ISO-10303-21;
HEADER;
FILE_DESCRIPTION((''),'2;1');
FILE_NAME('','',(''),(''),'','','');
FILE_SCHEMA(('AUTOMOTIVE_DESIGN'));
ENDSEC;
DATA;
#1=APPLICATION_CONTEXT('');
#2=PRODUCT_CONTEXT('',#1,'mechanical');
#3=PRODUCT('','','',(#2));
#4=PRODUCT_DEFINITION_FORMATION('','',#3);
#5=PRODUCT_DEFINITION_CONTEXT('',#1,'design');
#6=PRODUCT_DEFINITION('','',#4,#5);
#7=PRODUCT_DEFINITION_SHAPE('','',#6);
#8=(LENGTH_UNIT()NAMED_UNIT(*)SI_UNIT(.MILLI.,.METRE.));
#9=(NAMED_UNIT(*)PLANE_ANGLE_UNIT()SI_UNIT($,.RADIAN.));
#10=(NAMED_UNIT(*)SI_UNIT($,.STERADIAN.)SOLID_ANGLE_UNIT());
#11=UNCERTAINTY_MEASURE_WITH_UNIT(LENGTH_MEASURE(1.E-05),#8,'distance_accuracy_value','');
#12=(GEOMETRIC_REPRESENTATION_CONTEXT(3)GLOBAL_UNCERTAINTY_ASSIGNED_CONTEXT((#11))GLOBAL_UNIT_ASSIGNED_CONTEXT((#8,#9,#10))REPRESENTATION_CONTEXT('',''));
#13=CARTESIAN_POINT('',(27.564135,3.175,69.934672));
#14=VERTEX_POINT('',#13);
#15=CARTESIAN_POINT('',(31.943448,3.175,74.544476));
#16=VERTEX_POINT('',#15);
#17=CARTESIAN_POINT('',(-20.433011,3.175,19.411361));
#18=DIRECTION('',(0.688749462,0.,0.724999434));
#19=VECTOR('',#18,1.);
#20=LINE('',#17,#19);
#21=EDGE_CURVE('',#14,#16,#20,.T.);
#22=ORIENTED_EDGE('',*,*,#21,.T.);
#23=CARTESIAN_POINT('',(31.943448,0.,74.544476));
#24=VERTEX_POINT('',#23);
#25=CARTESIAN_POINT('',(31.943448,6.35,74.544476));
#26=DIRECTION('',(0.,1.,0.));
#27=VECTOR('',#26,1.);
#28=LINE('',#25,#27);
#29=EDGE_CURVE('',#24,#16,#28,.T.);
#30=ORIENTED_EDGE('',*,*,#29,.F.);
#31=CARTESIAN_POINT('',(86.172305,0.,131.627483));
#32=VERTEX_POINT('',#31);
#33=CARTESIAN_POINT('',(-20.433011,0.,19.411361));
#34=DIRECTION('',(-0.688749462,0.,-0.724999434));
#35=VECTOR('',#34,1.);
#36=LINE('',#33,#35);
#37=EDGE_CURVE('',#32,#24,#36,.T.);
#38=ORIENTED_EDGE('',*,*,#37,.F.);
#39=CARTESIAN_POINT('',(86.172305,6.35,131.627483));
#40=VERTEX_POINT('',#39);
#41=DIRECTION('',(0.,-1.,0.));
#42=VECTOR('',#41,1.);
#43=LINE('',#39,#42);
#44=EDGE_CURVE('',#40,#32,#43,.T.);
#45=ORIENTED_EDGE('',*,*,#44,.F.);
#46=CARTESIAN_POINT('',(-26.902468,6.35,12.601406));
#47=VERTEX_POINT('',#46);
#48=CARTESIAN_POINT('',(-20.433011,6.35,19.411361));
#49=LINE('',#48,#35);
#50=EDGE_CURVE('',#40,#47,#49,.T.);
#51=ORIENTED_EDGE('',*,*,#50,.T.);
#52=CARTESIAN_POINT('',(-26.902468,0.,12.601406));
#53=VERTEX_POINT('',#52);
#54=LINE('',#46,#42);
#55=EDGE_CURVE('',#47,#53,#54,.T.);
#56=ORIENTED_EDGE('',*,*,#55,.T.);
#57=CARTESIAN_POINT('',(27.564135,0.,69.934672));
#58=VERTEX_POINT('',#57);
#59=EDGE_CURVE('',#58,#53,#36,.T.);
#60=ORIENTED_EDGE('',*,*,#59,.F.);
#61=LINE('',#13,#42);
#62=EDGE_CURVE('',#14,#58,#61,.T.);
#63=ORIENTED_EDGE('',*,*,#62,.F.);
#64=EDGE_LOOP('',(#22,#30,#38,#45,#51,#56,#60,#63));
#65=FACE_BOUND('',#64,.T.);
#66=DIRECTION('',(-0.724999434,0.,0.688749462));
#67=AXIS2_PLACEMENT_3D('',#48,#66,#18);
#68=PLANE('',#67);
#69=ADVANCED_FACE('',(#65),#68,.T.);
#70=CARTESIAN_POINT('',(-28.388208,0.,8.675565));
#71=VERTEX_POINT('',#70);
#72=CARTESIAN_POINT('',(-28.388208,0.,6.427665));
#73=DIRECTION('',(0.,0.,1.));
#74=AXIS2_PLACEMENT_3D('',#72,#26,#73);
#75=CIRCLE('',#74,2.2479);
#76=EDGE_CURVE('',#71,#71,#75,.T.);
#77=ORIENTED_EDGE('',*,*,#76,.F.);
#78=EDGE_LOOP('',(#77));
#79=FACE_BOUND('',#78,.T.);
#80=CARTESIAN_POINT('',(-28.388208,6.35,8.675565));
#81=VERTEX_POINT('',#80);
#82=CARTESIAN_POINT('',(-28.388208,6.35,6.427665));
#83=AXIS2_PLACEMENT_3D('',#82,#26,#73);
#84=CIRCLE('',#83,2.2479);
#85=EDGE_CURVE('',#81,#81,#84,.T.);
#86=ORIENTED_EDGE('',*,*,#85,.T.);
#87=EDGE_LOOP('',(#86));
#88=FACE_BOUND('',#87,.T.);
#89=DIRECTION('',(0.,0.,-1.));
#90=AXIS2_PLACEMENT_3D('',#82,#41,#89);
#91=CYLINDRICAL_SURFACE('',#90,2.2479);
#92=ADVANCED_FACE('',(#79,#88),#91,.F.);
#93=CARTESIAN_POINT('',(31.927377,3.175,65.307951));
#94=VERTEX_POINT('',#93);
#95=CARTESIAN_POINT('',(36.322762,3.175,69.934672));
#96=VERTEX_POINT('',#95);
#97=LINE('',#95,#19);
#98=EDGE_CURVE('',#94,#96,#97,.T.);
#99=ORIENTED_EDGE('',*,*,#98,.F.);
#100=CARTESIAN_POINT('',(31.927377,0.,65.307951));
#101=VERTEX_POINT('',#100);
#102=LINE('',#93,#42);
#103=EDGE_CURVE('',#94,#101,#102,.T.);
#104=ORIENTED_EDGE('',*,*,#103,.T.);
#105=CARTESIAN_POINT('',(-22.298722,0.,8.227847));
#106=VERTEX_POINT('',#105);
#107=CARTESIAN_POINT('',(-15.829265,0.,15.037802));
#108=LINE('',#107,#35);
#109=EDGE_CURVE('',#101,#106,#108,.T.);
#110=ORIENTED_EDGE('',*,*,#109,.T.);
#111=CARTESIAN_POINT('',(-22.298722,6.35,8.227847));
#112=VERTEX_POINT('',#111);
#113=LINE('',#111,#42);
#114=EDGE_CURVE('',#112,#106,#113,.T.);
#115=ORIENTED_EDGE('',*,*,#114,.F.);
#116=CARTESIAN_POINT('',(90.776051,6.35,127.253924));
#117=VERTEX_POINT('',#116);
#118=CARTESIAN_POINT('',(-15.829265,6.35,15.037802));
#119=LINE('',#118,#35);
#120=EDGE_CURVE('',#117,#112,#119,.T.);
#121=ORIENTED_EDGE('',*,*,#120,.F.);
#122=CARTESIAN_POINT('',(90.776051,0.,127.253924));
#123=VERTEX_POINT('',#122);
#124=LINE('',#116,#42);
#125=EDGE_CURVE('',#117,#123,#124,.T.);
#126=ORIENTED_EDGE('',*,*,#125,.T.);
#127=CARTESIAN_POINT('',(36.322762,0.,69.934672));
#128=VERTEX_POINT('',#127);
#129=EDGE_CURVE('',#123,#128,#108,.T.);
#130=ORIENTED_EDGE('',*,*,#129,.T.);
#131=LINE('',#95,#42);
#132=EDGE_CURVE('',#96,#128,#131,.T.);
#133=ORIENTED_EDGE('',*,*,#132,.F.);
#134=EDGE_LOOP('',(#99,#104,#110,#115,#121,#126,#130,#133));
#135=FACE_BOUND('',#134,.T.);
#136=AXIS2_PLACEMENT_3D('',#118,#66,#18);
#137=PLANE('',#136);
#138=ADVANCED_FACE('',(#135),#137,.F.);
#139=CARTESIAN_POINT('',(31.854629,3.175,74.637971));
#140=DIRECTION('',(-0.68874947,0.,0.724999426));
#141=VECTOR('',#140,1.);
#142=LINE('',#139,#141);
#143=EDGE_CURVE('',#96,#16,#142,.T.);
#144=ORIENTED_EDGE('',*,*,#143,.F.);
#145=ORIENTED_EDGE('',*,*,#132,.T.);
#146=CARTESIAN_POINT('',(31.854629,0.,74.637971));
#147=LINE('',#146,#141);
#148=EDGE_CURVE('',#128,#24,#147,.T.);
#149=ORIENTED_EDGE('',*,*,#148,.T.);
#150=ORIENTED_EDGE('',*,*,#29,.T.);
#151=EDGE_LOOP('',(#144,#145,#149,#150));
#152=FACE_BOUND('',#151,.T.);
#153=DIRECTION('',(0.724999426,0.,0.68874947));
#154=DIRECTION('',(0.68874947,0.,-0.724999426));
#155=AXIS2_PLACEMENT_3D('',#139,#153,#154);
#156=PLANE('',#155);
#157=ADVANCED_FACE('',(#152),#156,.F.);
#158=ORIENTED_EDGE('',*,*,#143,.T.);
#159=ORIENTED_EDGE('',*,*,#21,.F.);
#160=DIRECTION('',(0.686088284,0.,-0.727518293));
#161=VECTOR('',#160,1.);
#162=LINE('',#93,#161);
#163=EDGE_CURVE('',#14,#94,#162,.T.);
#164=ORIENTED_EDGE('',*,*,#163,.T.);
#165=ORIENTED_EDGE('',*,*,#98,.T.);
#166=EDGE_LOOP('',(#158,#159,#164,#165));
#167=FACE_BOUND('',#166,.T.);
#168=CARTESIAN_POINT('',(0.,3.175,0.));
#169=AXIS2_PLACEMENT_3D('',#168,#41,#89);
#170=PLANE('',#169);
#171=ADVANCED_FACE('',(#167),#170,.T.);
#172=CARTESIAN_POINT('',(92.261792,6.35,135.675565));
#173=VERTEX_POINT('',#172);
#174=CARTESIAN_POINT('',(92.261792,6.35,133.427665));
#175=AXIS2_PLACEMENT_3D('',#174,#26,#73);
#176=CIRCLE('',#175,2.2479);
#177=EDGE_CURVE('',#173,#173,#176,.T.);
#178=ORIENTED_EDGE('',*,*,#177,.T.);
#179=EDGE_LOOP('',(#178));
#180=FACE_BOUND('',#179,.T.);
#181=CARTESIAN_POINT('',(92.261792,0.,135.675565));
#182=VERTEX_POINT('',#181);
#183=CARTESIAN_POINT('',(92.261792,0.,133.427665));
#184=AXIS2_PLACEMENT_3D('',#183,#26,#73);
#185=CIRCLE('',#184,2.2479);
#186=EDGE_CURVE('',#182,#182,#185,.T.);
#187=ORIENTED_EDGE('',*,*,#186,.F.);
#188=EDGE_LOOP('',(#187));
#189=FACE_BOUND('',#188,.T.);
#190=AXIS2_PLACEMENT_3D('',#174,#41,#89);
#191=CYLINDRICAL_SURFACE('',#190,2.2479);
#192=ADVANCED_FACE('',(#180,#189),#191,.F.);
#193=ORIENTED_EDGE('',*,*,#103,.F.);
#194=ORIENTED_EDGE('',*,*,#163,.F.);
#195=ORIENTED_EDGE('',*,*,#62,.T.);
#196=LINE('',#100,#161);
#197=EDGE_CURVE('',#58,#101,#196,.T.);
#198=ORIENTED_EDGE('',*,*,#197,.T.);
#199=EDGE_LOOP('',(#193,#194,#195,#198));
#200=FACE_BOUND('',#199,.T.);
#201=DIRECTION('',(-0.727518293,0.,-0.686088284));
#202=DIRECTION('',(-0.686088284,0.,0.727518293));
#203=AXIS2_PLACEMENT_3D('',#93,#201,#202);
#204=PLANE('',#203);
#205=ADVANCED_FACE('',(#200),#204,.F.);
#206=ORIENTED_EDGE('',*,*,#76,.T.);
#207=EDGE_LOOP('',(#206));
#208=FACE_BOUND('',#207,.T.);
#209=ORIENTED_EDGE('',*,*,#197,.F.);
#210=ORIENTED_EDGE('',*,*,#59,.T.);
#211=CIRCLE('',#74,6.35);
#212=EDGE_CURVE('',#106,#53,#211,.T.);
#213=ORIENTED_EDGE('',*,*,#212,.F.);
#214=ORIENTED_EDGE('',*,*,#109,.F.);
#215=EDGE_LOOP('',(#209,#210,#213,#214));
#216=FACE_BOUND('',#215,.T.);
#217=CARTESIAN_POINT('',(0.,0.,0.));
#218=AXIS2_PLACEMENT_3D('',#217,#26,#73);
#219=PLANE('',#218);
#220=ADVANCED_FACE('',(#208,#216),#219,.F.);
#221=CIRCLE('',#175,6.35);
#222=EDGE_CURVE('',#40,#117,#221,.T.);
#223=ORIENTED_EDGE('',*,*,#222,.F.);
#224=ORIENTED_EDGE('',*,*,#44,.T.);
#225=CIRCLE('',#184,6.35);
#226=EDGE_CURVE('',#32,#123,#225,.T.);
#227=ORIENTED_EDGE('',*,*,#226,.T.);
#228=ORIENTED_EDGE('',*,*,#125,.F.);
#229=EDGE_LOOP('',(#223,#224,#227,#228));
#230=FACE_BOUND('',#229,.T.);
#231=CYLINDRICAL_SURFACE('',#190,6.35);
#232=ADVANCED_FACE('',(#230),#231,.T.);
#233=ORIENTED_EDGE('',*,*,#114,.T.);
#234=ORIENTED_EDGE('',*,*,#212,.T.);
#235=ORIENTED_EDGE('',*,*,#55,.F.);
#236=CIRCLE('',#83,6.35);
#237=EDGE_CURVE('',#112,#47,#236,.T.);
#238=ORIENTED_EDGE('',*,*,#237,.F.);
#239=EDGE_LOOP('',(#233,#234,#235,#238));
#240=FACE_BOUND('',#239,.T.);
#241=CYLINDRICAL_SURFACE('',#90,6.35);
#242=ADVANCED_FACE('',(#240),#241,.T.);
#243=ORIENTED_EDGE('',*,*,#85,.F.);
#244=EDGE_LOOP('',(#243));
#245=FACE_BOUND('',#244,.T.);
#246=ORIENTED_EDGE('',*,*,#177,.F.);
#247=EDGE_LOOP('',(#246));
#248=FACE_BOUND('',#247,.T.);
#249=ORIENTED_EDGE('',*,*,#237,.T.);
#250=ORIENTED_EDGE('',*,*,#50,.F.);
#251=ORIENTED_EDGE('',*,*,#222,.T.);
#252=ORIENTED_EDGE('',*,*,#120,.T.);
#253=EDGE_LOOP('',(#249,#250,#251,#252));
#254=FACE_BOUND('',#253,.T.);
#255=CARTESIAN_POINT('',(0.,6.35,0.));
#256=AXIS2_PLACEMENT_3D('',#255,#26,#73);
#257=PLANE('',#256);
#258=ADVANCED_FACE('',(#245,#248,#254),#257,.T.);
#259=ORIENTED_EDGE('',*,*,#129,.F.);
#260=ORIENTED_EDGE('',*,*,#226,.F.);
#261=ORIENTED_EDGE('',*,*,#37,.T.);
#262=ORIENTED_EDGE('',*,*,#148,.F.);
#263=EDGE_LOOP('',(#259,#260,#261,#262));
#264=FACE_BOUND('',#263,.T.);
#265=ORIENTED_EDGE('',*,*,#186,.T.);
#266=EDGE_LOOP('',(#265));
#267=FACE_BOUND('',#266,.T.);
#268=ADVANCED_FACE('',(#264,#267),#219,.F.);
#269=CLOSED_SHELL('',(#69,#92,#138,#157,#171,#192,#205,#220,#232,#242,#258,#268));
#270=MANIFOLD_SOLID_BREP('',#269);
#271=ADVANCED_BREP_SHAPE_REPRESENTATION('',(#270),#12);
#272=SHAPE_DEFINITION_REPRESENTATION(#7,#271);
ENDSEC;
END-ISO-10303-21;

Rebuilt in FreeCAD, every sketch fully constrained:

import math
import FreeCAD as App
import Part
import Sketcher
Q = App.Units.Quantity


def add_polygon(sketch, points):
    """Adds a closed chain of lines whose ends are joined by coincident constraints."""
    first, n = sketch.GeometryCount, len(points)
    for a, b in zip(points, points[1:] + points[:1]):
        sketch.addGeometry(Part.LineSegment(App.Vector(*a, 0), App.Vector(*b, 0)), False)
    for i in range(n):
        sketch.addConstraint(Sketcher.Constraint("Coincident", first + i, 2, first + (i + 1) % n, 1))

doc = App.newDocument("Part")
body = doc.addObject("PartDesign::Body", "Body")

# Sketch on XZ plane
sketch1 = doc.addObject("Sketcher::SketchObject", "Sketch")
body.addObject(sketch1)
sketch1.AttachmentSupport = (doc.XZ_Plane, [""])
sketch1.MapMode = "FlatFace"
sketch1.addGeometry(Part.ArcOfCircle(Part.Circle(App.Vector(-28.388208, 6.427665, 0), App.Vector(0, 0, 1), 6.35), math.radians(76.468801), math.radians(376.468801)), False)
sketch1.addGeometry(Part.LineSegment(App.Vector(-26.902468, 12.601406, 0), App.Vector(86.172305, 131.627483, 0)), False)
sketch1.addGeometry(Part.ArcOfCircle(Part.Circle(App.Vector(92.261792, 133.427665, 0), App.Vector(0, 0, 1), 6.35), math.radians(-103.531199), math.radians(196.468801)), False)
sketch1.addGeometry(Part.LineSegment(App.Vector(90.776051, 127.253924, 0), App.Vector(-22.298722, 8.227847, 0)), False)
sketch1.addGeometry(Part.Circle(App.Vector(92.261792, 133.427665, 0), App.Vector(0, 0, 1), 2.2479), False)
sketch1.addGeometry(Part.Circle(App.Vector(-28.388208, 6.427665, 0), App.Vector(0, 0, 1), 2.2479), False)
sketch1.addConstraint(Sketcher.Constraint("Coincident", 0, 1, 1, 1))
sketch1.addConstraint(Sketcher.Constraint("Coincident", 1, 2, 2, 2))
sketch1.addConstraint(Sketcher.Constraint("Coincident", 2, 1, 3, 1))
sketch1.addConstraint(Sketcher.Constraint("Coincident", 3, 2, 0, 2))
sketch1.addConstraint(Sketcher.Constraint("Coincident", 4, 3, 2, 3))
sketch1.addConstraint(Sketcher.Constraint("Coincident", 5, 3, 0, 3))
sketch1.addConstraint(Sketcher.Constraint("Equal", 0, 2))
sketch1.addConstraint(Sketcher.Constraint("Equal", 4, 5))
sketch1.addConstraint(Sketcher.Constraint("Parallel", 1, 3))
sketch1.addConstraint(Sketcher.Constraint("Equal", 1, 3))
sketch1.addConstraint(Sketcher.Constraint("Radius", 0, Q("0.25 in")))
sketch1.addConstraint(Sketcher.Constraint("Diameter", 4, Q("0.177 in")))
sketch1.addConstraint(Sketcher.Constraint("DistanceY", 0, 3, 2, 3, Q("5 in")))
sketch1.addConstraint(Sketcher.Constraint("DistanceX", 0, 3, 2, 3, Q("4.75 in")))
sketch1.addConstraint(Sketcher.Constraint("Distance", 1, 164.174028))
sketch1.addConstraint(Sketcher.Constraint("DistanceX", 0, 3, -1, 1, 28.388208))
sketch1.addConstraint(Sketcher.Constraint("DistanceX", 0, 1, -1, 1, 26.902468))
sketch1.addConstraint(Sketcher.Constraint("DistanceY", -1, 1, 0, 3, 6.427665))
pad1 = doc.addObject("PartDesign::Pad", "Pad")
body.addObject(pad1)
pad1.Profile = sketch1
pad1.Length = Q("0.25 in")
pad1.Reversed = True

# Sketch on XZ plane
sketch2 = doc.addObject("Sketcher::SketchObject", "Sketch001")
body.addObject(sketch2)
sketch2.AttachmentSupport = (doc.XZ_Plane, [""])
sketch2.MapMode = "FlatFace"
add_polygon(sketch2, [(27.564135, 69.934672), (31.927377, 65.307951), (36.322762, 69.934672), (31.854629, 74.637971)])  # lines 0-3
sketch2.addConstraint(Sketcher.Constraint("Horizontal", 1, 2, 3, 2))
sketch2.addConstraint(Sketcher.Constraint("DistanceY", 1, 2, 2, 2, 4.703298))
sketch2.addConstraint(Sketcher.Constraint("Distance", 1, 6.381689))
sketch2.addConstraint(Sketcher.Constraint("DistanceY", -1, 1, 0, 2, 65.307951))
sketch2.addConstraint(Sketcher.Constraint("DistanceX", -1, 1, 2, 2, 31.854629))
sketch2.addConstraint(Sketcher.Constraint("DistanceY", -1, 1, 2, 2, 74.637971))
sketch2.addConstraint(Sketcher.Constraint("DistanceX", 2, 2, 0, 2, 0.072749))
sketch2.addConstraint(Sketcher.Constraint("Distance", 0, 6.359594))
pocket1 = doc.addObject("PartDesign::Pocket", "Pocket")
body.addObject(pocket1)
pocket1.Profile = sketch2
pocket1.Length = Q("0.125 in")

doc.recompute()
